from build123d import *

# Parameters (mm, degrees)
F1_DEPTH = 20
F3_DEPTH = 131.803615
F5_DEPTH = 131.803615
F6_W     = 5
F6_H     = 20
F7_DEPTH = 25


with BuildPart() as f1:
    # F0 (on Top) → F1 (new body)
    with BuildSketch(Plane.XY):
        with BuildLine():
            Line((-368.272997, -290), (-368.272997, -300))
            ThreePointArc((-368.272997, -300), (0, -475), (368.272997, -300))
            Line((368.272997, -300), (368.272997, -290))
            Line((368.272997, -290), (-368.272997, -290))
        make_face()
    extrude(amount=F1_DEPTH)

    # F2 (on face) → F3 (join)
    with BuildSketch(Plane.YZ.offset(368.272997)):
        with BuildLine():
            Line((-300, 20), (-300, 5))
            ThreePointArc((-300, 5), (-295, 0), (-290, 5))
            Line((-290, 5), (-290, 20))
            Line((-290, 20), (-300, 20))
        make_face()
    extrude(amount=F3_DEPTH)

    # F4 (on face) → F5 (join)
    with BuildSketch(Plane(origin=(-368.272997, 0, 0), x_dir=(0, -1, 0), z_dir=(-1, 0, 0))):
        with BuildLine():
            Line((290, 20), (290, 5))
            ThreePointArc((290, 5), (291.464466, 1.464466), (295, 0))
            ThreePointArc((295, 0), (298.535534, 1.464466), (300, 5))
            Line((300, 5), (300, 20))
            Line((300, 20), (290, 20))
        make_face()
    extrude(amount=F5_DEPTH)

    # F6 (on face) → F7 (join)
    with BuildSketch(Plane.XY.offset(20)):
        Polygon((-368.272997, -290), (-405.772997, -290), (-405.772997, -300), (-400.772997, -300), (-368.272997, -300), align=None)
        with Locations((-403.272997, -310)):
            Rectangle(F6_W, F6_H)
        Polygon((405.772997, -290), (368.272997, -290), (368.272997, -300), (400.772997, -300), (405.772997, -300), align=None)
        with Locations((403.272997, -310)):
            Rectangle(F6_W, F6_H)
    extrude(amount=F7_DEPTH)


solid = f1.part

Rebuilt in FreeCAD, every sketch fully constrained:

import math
import FreeCAD as App
import Part
import Sketcher
Q = App.Units.Quantity


def add_polygon(sketch, points):
    """Adds a closed chain of lines whose ends are joined by coincident constraints."""
    first, n = sketch.GeometryCount, len(points)
    for a, b in zip(points, points[1:] + points[:1]):
        sketch.addGeometry(Part.LineSegment(App.Vector(*a, 0), App.Vector(*b, 0)), False)
    for i in range(n):
        sketch.addConstraint(Sketcher.Constraint("Coincident", first + i, 2, first + (i + 1) % n, 1))

doc = App.newDocument("Part")
body = doc.addObject("PartDesign::Body", "Body")

# Sketch on XY plane
sketch1 = body.newObject("Sketcher::SketchObject", "Sketch")
sketch1.AttachmentSupport = (doc.getObject("XY_Plane"), [""])
sketch1.MapMode = "FlatFace"
sketch1.addGeometry(Part.LineSegment(App.Vector(-368, -290, 0), App.Vector(-368, -300, 0)), False)
sketch1.addGeometry(Part.ArcOfCircle(Part.Circle(App.Vector(0, 0, 0), App.Vector(0, 0, 1), 475), math.radians(-141), math.radians(-39)), False)
sketch1.addGeometry(Part.LineSegment(App.Vector(368, -300, 0), App.Vector(368, -290, 0)), False)
sketch1.addGeometry(Part.LineSegment(App.Vector(368, -290, 0), App.Vector(-368, -290, 0)), False)
sketch1.addConstraint(Sketcher.Constraint("Coincident", 0, 2, 1, 1))
sketch1.addConstraint(Sketcher.Constraint("Coincident", 1, 2, 2, 1))
sketch1.addConstraint(Sketcher.Constraint("Coincident", 2, 2, 3, 1))
sketch1.addConstraint(Sketcher.Constraint("Coincident", 3, 2, 0, 1))
sketch1.addConstraint(Sketcher.Constraint("Vertical", 0))
sketch1.addConstraint(Sketcher.Constraint("Vertical", 2))
sketch1.addConstraint(Sketcher.Constraint("Horizontal", 3))
sketch1.addConstraint(Sketcher.Constraint("Coincident", 1, 3, -1, 1))
sketch1.addConstraint(Sketcher.Constraint("Horizontal", 0, 2, 1, 2))
sketch1.addConstraint(Sketcher.Constraint("Radius", 1, Q("475.000001 mm")))
sketch1.addConstraint(Sketcher.Constraint("DistanceY", 0, 2, 0, 1, Q("10 mm")))
sketch1.addConstraint(Sketcher.Constraint("DistanceY", 0, 2, -1, 1, Q("300 mm")))
pad1 = body.newObject("PartDesign::Pad", "Pad")
pad1.Profile = sketch1
pad1.Length = 20

# Sketch on YZ plane
sketch2 = body.newObject("Sketcher::SketchObject", "Sketch001")
sketch2.AttachmentSupport = (doc.getObject("YZ_Plane"), [""])
sketch2.MapMode = "FlatFace"
sketch2.AttachmentOffset = App.Placement(App.Vector(0, 0, 368.272997), App.Rotation())
sketch2.addGeometry(Part.LineSegment(App.Vector(-300, 20, 0), App.Vector(-300, 5, 0)), False)
sketch2.addGeometry(Part.ArcOfCircle(Part.Circle(App.Vector(-295, 5, 0), App.Vector(0, 0, 1), 5), math.radians(180), math.radians(360)), False)
sketch2.addGeometry(Part.LineSegment(App.Vector(-290, 5, 0), App.Vector(-290, 20, 0)), False)
sketch2.addGeometry(Part.LineSegment(App.Vector(-290, 20, 0), App.Vector(-300, 20, 0)), False)
sketch2.addConstraint(Sketcher.Constraint("Tangent", 0, 2, 1, 1))
sketch2.addConstraint(Sketcher.Constraint("Tangent", 1, 2, 2, 1))
sketch2.addConstraint(Sketcher.Constraint("Coincident", 2, 2, 3, 1))
sketch2.addConstraint(Sketcher.Constraint("Coincident", 3, 2, 0, 1))
sketch2.addConstraint(Sketcher.Constraint("Vertical", 0))
sketch2.addConstraint(Sketcher.Constraint("Vertical", 2))
sketch2.addConstraint(Sketcher.Constraint("Horizontal", 3))
sketch2.addConstraint(Sketcher.Constraint("Radius", 1, Q("5 mm")))
sketch2.addConstraint(Sketcher.Constraint("DistanceY", 0, 2, 0, 1, Q("15 mm")))
sketch2.addConstraint(Sketcher.Constraint("DistanceX", 1, 3, -1, 1, Q("295 mm")))
sketch2.addConstraint(Sketcher.Constraint("DistanceY", -1, 1, 1, 3, Q("5 mm")))
pad2 = body.newObject("PartDesign::Pad", "Pad001")
pad2.Profile = sketch2
pad2.Length = 131.803615

# Sketch on YZ plane
sketch3 = body.newObject("Sketcher::SketchObject", "Sketch002")
sketch3.AttachmentSupport = (doc.getObject("YZ_Plane"), [""])
sketch3.MapMode = "FlatFace"
sketch3.AttachmentOffset = App.Placement(App.Vector(0, 0, -368.272997), App.Rotation())
sketch3.addGeometry(Part.LineSegment(App.Vector(-290, 20, 0), App.Vector(-290, 5, 0)), False)
sketch3.addGeometry(Part.ArcOfCircle(Part.Circle(App.Vector(-295, 5, 0), App.Vector(0, 0, 1), 5), math.radians(-90), math.radians(0)), False)
sketch3.addGeometry(Part.ArcOfCircle(Part.Circle(App.Vector(-295, 5, 0), App.Vector(0, 0, 1), 5), math.radians(180), math.radians(270)), False)
sketch3.addGeometry(Part.LineSegment(App.Vector(-300, 5, 0), App.Vector(-300, 20, 0)), False)
sketch3.addGeometry(Part.LineSegment(App.Vector(-300, 20, 0), App.Vector(-290, 20, 0)), False)
sketch3.addConstraint(Sketcher.Constraint("Tangent", 0, 2, 1, 2))
sketch3.addConstraint(Sketcher.Constraint("Tangent", 1, 1, 2, 2))
sketch3.addConstraint(Sketcher.Constraint("Tangent", 2, 1, 3, 1))
sketch3.addConstraint(Sketcher.Constraint("Coincident", 3, 2, 4, 1))
sketch3.addConstraint(Sketcher.Constraint("Coincident", 4, 2, 0, 1))
sketch3.addConstraint(Sketcher.Constraint("Vertical", 0))
sketch3.addConstraint(Sketcher.Constraint("Vertical", 3))
sketch3.addConstraint(Sketcher.Constraint("Horizontal", 4))
sketch3.addConstraint(Sketcher.Constraint("Equal", 1, 2))
sketch3.addConstraint(Sketcher.Constraint("PointOnObject", 1, 1, -1))
sketch3.addConstraint(Sketcher.Constraint("Vertical", 2, 3, 1, 1))
sketch3.addConstraint(Sketcher.Constraint("Radius", 1, Q("5 mm")))
sketch3.addConstraint(Sketcher.Constraint("DistanceY", 0, 2, 0, 1, Q("15 mm")))
sketch3.addConstraint(Sketcher.Constraint("DistanceX", 1, 3, -1, 1, Q("295 mm")))
pad3 = body.newObject("PartDesign::Pad", "Pad002")
pad3.Profile = sketch3
pad3.Length = 131.803615
pad3.Reversed = True

# Sketch on XY plane
sketch4 = body.newObject("Sketcher::SketchObject", "Sketch003")
sketch4.AttachmentSupport = (doc.getObject("XY_Plane"), [""])
sketch4.MapMode = "FlatFace"
sketch4.AttachmentOffset = App.Placement(App.Vector(0, 0, 20), App.Rotation())
add_polygon(sketch4, [(-368, -290), (-406, -290), (-406, -320), (-401, -320), (-401, -300), (-368, -300)])  # lines 0-5
add_polygon(sketch4, [(406, -290), (368, -290), (368, -300), (401, -300), (401, -320), (406, -320)])  # lines 6-11
sketch4.addConstraint(Sketcher.Constraint("Horizontal", 0))
sketch4.addConstraint(Sketcher.Constraint("Vertical", 1))
sketch4.addConstraint(Sketcher.Constraint("Horizontal", 2))
sketch4.addConstraint(Sketcher.Constraint("Vertical", 3))
sketch4.addConstraint(Sketcher.Constraint("Horizontal", 4))
sketch4.addConstraint(Sketcher.Constraint("Vertical", 5))
sketch4.addConstraint(Sketcher.Constraint("Horizontal", 6))
sketch4.addConstraint(Sketcher.Constraint("Vertical", 7))
sketch4.addConstraint(Sketcher.Constraint("Horizontal", 8))
sketch4.addConstraint(Sketcher.Constraint("Vertical", 9))
sketch4.addConstraint(Sketcher.Constraint("Horizontal", 10))
sketch4.addConstraint(Sketcher.Constraint("Vertical", 11))
sketch4.addConstraint(Sketcher.Constraint("Symmetric", 5, 2, 6, 2, -2))
sketch4.addConstraint(Sketcher.Constraint("Symmetric", 3, 2, 8, 2, -2))
sketch4.addConstraint(Sketcher.Constraint("Symmetric", 1, 2, 10, 2, -2))
sketch4.addConstraint(Sketcher.Constraint("DistanceX", 2, 1, 2, 2, Q("5 mm")))
sketch4.addConstraint(Sketcher.Constraint("DistanceY", 1, 2, 1, 1, Q("30 mm")))
sketch4.addConstraint(Sketcher.Constraint("DistanceY", 3, 1, 3, 2, Q("20 mm")))
sketch4.addConstraint(Sketcher.Constraint("DistanceX", 0, 2, 0, 1, Q("37.5 mm")))
sketch4.addConstraint(Sketcher.Constraint("DistanceY", 0, 2, -1, 1, Q("290 mm")))
sketch4.addConstraint(Sketcher.Constraint("DistanceX", 0, 2, -1, 1, Q("405.772997 mm")))
pad4 = body.newObject("PartDesign::Pad", "Pad003")
pad4.Profile = sketch4
pad4.Length = 25

doc.recompute()
